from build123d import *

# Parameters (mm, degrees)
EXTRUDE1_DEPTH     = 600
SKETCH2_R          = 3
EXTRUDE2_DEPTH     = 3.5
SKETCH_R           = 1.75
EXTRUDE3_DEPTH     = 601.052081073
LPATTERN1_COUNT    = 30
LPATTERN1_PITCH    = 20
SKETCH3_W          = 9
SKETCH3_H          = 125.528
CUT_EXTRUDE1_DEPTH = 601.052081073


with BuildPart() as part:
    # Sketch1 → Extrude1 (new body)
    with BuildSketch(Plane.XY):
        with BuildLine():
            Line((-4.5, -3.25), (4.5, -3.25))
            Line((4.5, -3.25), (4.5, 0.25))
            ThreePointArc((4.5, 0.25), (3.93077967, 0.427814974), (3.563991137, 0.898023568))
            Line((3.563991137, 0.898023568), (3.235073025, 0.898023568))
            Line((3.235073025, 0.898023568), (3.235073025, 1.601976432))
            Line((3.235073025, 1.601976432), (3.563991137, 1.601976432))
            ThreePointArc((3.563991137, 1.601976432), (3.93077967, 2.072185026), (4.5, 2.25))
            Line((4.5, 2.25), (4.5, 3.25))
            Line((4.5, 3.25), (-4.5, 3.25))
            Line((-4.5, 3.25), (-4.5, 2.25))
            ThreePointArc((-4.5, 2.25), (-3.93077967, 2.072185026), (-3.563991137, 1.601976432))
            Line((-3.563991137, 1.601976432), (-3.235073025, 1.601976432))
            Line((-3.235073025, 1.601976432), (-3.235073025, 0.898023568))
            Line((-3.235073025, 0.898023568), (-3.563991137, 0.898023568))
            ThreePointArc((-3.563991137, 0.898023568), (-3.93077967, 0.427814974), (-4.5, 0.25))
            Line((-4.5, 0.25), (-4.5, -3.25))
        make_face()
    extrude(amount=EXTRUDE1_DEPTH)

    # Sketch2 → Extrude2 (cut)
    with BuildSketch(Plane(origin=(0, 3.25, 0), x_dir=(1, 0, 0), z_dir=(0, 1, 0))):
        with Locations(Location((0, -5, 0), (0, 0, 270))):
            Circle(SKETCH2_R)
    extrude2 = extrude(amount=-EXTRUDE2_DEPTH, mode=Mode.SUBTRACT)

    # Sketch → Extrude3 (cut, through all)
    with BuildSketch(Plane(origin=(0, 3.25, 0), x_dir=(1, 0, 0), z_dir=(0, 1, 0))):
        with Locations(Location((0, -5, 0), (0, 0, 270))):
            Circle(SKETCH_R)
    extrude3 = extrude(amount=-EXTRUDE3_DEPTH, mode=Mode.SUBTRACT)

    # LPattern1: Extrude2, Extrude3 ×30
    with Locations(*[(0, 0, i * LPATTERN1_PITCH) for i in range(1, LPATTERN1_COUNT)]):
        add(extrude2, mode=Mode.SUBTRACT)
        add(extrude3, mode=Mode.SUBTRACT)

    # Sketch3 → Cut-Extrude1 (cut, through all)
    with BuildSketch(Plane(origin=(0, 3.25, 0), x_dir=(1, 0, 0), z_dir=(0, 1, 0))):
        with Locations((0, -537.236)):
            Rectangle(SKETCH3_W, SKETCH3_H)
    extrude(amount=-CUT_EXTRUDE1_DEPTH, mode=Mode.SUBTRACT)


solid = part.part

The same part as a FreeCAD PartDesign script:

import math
import FreeCAD as App
import Part
import Sketcher
Q = App.Units.Quantity


def add_polygon(sketch, points):
    """Adds a closed chain of lines whose ends are joined by coincident constraints."""
    first, n = sketch.GeometryCount, len(points)
    for a, b in zip(points, points[1:] + points[:1]):
        sketch.addGeometry(Part.LineSegment(App.Vector(*a, 0), App.Vector(*b, 0)), False)
    for i in range(n):
        sketch.addConstraint(Sketcher.Constraint("Coincident", first + i, 2, first + (i + 1) % n, 1))

doc = App.newDocument("Part")
body = doc.addObject("PartDesign::Body", "Body")

# Sketch on XY plane
sketch1 = body.newObject("Sketcher::SketchObject", "Sketch")
sketch1.AttachmentSupport = (doc.getObject("XY_Plane"), [""])
sketch1.MapMode = "FlatFace"
sketch1.addGeometry([
    Part.LineSegment(App.Vector(-4.5, -3.25, 0), App.Vector(4.5, -3.25, 0)),  # 0
    Part.LineSegment(App.Vector(4.5, -3.25, 0), App.Vector(4.5, 0.25, 0)),  # 1
    Part.ArcOfCircle(Part.Circle(App.Vector(4.5, 1.25, 0), App.Vector(0, 0, 1), 1), math.radians(-159), math.radians(-90)),  # 2
    Part.LineSegment(App.Vector(3.56, 0.9, 0), App.Vector(3.24, 0.9, 0)),  # 3
    Part.LineSegment(App.Vector(3.24, 0.9, 0), App.Vector(3.24, 1.6, 0)),  # 4
    Part.LineSegment(App.Vector(3.24, 1.6, 0), App.Vector(3.56, 1.6, 0)),  # 5
    Part.ArcOfCircle(Part.Circle(App.Vector(4.5, 1.25, 0), App.Vector(0, 0, 1), 1), math.radians(90), math.radians(159)),  # 6
    Part.LineSegment(App.Vector(4.5, 2.25, 0), App.Vector(4.5, 3.25, 0)),  # 7
    Part.LineSegment(App.Vector(4.5, 3.25, 0), App.Vector(-4.5, 3.25, 0)),  # 8
    Part.LineSegment(App.Vector(-4.5, 3.25, 0), App.Vector(-4.5, 2.25, 0)),  # 9
    Part.ArcOfCircle(Part.Circle(App.Vector(-4.5, 1.25, 0), App.Vector(0, 0, 1), 1), math.radians(21), math.radians(90)),  # 10
    Part.LineSegment(App.Vector(-3.56, 1.6, 0), App.Vector(-3.24, 1.6, 0)),  # 11
    Part.LineSegment(App.Vector(-3.24, 1.6, 0), App.Vector(-3.24, 0.9, 0)),  # 12
    Part.LineSegment(App.Vector(-3.24, 0.9, 0), App.Vector(-3.56, 0.9, 0)),  # 13
    Part.ArcOfCircle(Part.Circle(App.Vector(-4.5, 1.25, 0), App.Vector(0, 0, 1), 1), math.radians(-90), math.radians(-21)),  # 14
    Part.LineSegment(App.Vector(-4.5, 0.25, 0), App.Vector(-4.5, -3.25, 0)),  # 15
], False)
sketch1.addConstraint([
    Sketcher.Constraint("Coincident", 0, 2, 1, 1),
    Sketcher.Constraint("Coincident", 1, 2, 2, 2),
    Sketcher.Constraint("Coincident", 2, 1, 3, 1),
    Sketcher.Constraint("Coincident", 3, 2, 4, 1),
    Sketcher.Constraint("Coincident", 4, 2, 5, 1),
    Sketcher.Constraint("Coincident", 5, 2, 6, 2),
    Sketcher.Constraint("Coincident", 6, 1, 7, 1),
    Sketcher.Constraint("Coincident", 7, 2, 8, 1),
    Sketcher.Constraint("Coincident", 8, 2, 9, 1),
    Sketcher.Constraint("Coincident", 9, 2, 10, 2),
    Sketcher.Constraint("Coincident", 10, 1, 11, 1),
    Sketcher.Constraint("Coincident", 11, 2, 12, 1),
    Sketcher.Constraint("Coincident", 12, 2, 13, 1),
    Sketcher.Constraint("Coincident", 13, 2, 14, 2),
    Sketcher.Constraint("Coincident", 14, 1, 15, 1),
    Sketcher.Constraint("Coincident", 15, 2, 0, 1),
    Sketcher.Constraint("Horizontal", 0),
    Sketcher.Constraint("Vertical", 1),
    Sketcher.Constraint("Horizontal", 3),
    Sketcher.Constraint("Vertical", 4),
    Sketcher.Constraint("Horizontal", 5),
    Sketcher.Constraint("Vertical", 7),
    Sketcher.Constraint("Horizontal", 8),
    Sketcher.Constraint("Vertical", 9),
    Sketcher.Constraint("Horizontal", 11),
    Sketcher.Constraint("Vertical", 12),
    Sketcher.Constraint("Horizontal", 13),
    Sketcher.Constraint("Vertical", 15),
    Sketcher.Constraint("Coincident", 6, 3, 2, 3),
    Sketcher.Constraint("Coincident", 14, 3, 10, 3),
    Sketcher.Constraint("Equal", 2, 6),
    Sketcher.Constraint("Equal", 6, 10),
    Sketcher.Constraint("Equal", 10, 14),
    Sketcher.Constraint("Symmetric", 0, 2, 8, 2, -1, 1),
    Sketcher.Constraint("Symmetric", 2, 3, 10, 3, -2),
    Sketcher.Constraint("Symmetric", 4, 2, 11, 2, -2),
    Sketcher.Constraint("Horizontal", 3, 2, 12, 2),
    Sketcher.Constraint("Vertical", 6, 3, 0, 2),
    Sketcher.Constraint("Vertical", 2, 1, 5, 2),
    Sketcher.Constraint("Vertical", 1, 2, 6, 1),
    Sketcher.Constraint("Vertical", 9, 2, 14, 1),
    Sketcher.Constraint("Radius", 2, Q("1 mm")),
    Sketcher.Constraint("DistanceX", 0, 1, 0, 2, Q("9 mm")),
    Sketcher.Constraint("DistanceY", 7, 1, 7, 2, Q("1 mm")),
    Sketcher.Constraint("DistanceY", 1, 1, 1, 2, Q("3.5 mm")),
    Sketcher.Constraint("DistanceX", 3, 2, 3, 1, Q("0.328918 mm")),
    Sketcher.Constraint("DistanceY", 4, 1, 4, 2, Q("0.703953 mm")),
])
pad1 = body.newObject("PartDesign::Pad", "Pad")
pad1.Profile = sketch1
pad1.Length = 600

# Sketch on XZ plane
sketch2 = body.newObject("Sketcher::SketchObject", "Sketch001")
sketch2.AttachmentSupport = (doc.getObject("XZ_Plane"), [""])
sketch2.MapMode = "FlatFace"
sketch2.AttachmentOffset = App.Placement(App.Vector(0, 0, -3.25), App.Rotation())
sketch2.addGeometry(Part.Circle(App.Vector(0, 5, 0), App.Vector(0, 0, 1), 3), False)
sketch2.addConstraint([
    Sketcher.Constraint("PointOnObject", 0, 3, -2),
    Sketcher.Constraint("Diameter", 0, Q("6 mm")),
    Sketcher.Constraint("DistanceY", -1, 1, 0, 3, Q("5 mm")),
])
pocket1 = body.newObject("PartDesign::Pocket", "Pocket")
pocket1.Profile = sketch2
pocket1.Length = 3.5
pocket1.Reversed = True

# Sketch on XZ plane
sketch3 = body.newObject("Sketcher::SketchObject", "Sketch002")
sketch3.AttachmentSupport = (doc.getObject("XZ_Plane"), [""])
sketch3.MapMode = "FlatFace"
sketch3.AttachmentOffset = App.Placement(App.Vector(0, 0, -3.25), App.Rotation())
sketch3.addGeometry(Part.Circle(App.Vector(0, 5, 0), App.Vector(0, 0, 1), 1.8), False)
sketch3.addConstraint([
    Sketcher.Constraint("PointOnObject", 0, 3, -2),
    Sketcher.Constraint("Diameter", 0, Q("3.5 mm")),
    Sketcher.Constraint("DistanceY", -1, 1, 0, 3, Q("5 mm")),
])
pocket2 = body.newObject("PartDesign::Pocket", "Pocket001")
pocket2.Profile = sketch3
pocket2.Type = "ThroughAll"
pocket2.Reversed = True
doc.recompute()

linearpattern = body.newObject("PartDesign::LinearPattern", "LinearPattern")
linearpattern.Originals = [pocket1, pocket2]
linearpattern.Direction = (doc.getObject("Z_Axis"), [""])
linearpattern.Mode = "offset"
linearpattern.Offset = 20
linearpattern.Occurrences = 30
body.Tip = linearpattern

# Sketch on XZ plane
sketch4 = body.newObject("Sketcher::SketchObject", "Sketch003")
sketch4.AttachmentSupport = (doc.getObject("XZ_Plane"), [""])
sketch4.MapMode = "FlatFace"
sketch4.AttachmentOffset = App.Placement(App.Vector(0, 0, -3.25), App.Rotation())
add_polygon(sketch4, [(-4, 474), (-4, 600), (4, 600), (4, 474)])  # lines 0-3
sketch4.addConstraint([
    Sketcher.Constraint("Vertical", 0),
    Sketcher.Constraint("Horizontal", 1),
    Sketcher.Constraint("Vertical", 2),
    Sketcher.Constraint("Horizontal", 3),
    Sketcher.Constraint("DistanceX", 1, 1, 1, 2, Q("9 mm")),
    Sketcher.Constraint("DistanceY", -1, 1, 0, 2, Q("600 mm")),
    Sketcher.Constraint("DistanceX", 0, 2, -1, 1, Q("4.5 mm")),
    Sketcher.Constraint("DistanceY", 0, 1, 0, 2, Q("125.528 mm")),
])
pocket3 = body.newObject("PartDesign::Pocket", "Pocket002")
pocket3.Profile = sketch4
pocket3.Type = "ThroughAll"
pocket3.Reversed = True

doc.recompute()
